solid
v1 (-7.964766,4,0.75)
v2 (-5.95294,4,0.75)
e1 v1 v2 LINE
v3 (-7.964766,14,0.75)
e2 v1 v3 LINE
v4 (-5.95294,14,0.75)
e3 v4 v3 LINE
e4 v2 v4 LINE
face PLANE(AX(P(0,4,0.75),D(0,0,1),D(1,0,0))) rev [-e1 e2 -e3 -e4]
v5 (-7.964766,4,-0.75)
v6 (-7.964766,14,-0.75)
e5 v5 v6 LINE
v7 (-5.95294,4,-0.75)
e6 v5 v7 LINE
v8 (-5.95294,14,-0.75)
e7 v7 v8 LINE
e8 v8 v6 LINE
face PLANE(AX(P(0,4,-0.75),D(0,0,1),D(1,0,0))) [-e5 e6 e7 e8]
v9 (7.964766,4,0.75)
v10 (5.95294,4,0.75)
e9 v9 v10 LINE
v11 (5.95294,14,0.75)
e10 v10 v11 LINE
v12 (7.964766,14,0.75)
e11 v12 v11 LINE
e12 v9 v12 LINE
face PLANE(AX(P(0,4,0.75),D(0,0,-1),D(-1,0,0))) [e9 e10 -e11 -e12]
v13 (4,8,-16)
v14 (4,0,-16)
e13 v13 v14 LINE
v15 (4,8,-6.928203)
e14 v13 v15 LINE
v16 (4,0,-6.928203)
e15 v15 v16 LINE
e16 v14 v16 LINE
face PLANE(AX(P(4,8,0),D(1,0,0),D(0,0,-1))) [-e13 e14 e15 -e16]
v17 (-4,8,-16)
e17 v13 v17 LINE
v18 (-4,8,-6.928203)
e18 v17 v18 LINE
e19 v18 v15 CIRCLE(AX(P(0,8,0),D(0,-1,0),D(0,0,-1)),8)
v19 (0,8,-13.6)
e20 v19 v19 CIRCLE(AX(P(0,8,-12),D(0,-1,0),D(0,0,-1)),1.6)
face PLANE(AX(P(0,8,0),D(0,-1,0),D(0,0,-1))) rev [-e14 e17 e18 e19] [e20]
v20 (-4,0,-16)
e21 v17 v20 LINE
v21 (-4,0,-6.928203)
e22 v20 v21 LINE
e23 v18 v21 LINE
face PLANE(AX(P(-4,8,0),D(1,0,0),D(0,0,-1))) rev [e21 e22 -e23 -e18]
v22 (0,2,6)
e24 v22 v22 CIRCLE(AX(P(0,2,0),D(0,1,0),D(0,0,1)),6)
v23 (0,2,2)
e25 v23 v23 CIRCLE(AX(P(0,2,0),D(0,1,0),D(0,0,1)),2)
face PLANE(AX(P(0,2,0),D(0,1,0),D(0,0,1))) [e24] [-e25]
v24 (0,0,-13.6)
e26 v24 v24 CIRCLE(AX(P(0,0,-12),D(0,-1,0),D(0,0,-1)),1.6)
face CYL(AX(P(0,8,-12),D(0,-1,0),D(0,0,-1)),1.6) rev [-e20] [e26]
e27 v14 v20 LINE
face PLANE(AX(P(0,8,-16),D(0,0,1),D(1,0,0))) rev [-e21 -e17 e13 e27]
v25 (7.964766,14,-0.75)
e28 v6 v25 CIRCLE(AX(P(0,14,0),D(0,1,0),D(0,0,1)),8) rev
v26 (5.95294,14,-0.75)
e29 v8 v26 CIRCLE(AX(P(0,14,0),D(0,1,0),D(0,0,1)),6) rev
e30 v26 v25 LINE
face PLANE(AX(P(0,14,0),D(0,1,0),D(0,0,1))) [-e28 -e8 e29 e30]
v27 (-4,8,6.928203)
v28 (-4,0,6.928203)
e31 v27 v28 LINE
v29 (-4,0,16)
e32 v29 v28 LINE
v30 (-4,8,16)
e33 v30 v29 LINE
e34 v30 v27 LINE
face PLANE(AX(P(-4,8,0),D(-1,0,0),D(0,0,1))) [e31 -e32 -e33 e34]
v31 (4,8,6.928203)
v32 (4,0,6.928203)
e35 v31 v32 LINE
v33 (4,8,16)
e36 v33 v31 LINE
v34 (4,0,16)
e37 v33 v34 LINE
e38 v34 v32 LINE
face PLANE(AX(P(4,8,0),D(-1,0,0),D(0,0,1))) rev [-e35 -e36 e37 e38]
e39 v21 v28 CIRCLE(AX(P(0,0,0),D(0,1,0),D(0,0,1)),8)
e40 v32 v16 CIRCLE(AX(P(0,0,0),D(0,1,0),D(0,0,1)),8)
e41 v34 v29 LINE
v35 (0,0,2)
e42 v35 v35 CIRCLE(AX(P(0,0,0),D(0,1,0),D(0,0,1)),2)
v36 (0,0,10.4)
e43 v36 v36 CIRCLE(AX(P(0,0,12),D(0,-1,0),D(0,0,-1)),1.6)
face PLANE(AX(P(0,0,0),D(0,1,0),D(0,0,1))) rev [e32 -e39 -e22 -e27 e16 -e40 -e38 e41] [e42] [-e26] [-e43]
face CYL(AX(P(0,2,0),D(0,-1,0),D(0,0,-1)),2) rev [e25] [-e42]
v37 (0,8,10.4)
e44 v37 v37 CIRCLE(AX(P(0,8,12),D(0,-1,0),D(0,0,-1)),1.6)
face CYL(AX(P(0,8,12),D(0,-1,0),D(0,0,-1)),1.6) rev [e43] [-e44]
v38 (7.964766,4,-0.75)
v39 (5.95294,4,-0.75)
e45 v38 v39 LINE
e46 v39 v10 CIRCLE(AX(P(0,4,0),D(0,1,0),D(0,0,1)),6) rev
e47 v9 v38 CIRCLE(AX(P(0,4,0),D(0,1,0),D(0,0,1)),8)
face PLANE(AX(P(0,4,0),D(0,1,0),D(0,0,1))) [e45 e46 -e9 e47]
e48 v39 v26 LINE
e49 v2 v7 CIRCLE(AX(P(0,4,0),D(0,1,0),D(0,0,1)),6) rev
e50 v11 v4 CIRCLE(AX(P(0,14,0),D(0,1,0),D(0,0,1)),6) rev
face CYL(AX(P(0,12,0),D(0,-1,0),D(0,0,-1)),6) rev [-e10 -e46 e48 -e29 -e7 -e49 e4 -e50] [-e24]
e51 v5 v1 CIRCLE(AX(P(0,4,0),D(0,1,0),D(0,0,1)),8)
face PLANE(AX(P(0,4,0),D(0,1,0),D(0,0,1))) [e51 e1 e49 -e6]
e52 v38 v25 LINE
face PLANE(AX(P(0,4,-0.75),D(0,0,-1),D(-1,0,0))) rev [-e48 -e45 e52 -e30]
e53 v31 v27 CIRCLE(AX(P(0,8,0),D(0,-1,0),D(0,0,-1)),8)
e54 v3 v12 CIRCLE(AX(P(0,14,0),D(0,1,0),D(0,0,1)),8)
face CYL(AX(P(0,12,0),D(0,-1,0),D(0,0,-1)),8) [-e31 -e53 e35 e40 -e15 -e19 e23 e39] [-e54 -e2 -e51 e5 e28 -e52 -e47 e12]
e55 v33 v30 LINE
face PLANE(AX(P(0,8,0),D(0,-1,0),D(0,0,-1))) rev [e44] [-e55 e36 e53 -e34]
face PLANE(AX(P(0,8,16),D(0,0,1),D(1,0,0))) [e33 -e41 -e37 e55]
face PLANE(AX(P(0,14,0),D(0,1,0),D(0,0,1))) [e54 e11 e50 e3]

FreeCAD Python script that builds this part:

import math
import FreeCAD as App
import Part
import Sketcher

V = App.Vector
Q = App.Units.Quantity

doc = App.newDocument("Part")
body = doc.addObject("PartDesign::Body", "Body")

# Sketch on XZ plane
sketch1 = body.newObject("Sketcher::SketchObject", "Sketch")
sketch1.AttachmentSupport = (doc.getObject("XZ_Plane"), [""])
sketch1.MapMode = "FlatFace"
sketch1.addGeometry([
    Part.Circle(V(0, 0, 0), V(0, 0, 1), 8),
    Part.Circle(V(0, 0, 0), V(0, 0, 1), 6),
], False)
sketch1.addConstraint([
    Sketcher.Constraint("Coincident", 0, 3, -1, 1),
    Sketcher.Constraint("Coincident", 1, 3, -1, 1),
    Sketcher.Constraint("Diameter", 0, Q("16 mm")),
    Sketcher.Constraint("Diameter", 1, Q("12 mm")),
])
pad1 = body.newObject("PartDesign::Pad", "Pad")
pad1.Profile = sketch1
pad1.Length = 12
pad1.Reversed = True

# Sketch on XZ plane
sketch2 = body.newObject("Sketcher::SketchObject", "Sketch001")
sketch2.AttachmentSupport = (doc.getObject("XZ_Plane"), [""])
sketch2.MapMode = "FlatFace"
sketch2.addGeometry([
    Part.Circle(V(0, 0, 0), V(0, 0, 1), 6),
    Part.Circle(V(0, 0, 0), V(0, 0, 1), 2),
], False)
sketch2.addConstraint([
    Sketcher.Constraint("Coincident", 0, 3, -1, 1),
    Sketcher.Constraint("Coincident", 1, 3, -1, 1),
    Sketcher.Constraint("Diameter", 0, Q("12 mm")),
    Sketcher.Constraint("Diameter", 1, Q("4 mm")),
])
pad2 = body.newObject("PartDesign::Pad", "Pad001")
pad2.Profile = sketch2
pad2.Length = 2
pad2.Reversed = True

# Sketch on XZ plane
sketch3 = body.newObject("Sketcher::SketchObject", "Sketch002")
sketch3.AttachmentSupport = (doc.getObject("XZ_Plane"), [""])
sketch3.MapMode = "FlatFace"
sketch3.AttachmentOffset = App.Placement(V(0, 0, -4), App.Rotation())
sketch3.addGeometry([
    Part.ArcOfCircle(Part.Circle(V(0, 0, 0), V(0, 0, 1), 8), math.radians(180), math.radians(185.38)),  # 0
    Part.ArcOfCircle(Part.Circle(V(0, 0, 0), V(0, 0, 1), 8), math.radians(174.62), math.radians(180)),  # 1
    Part.LineSegment(V(-8, 0.8, 0), V(-6, 0.8, 0)),  # 2
    Part.ArcOfCircle(Part.Circle(V(0, 0, 0), V(0, 0, 1), 6), math.radians(172.82), math.radians(187.18)),  # 3
    Part.LineSegment(V(-6, -0.8, 0), V(-8, -0.8, 0)),  # 4
    Part.ArcOfCircle(Part.Circle(V(0, 0, 0), V(0, 0, 1), 8), math.radians(-5.38), math.radians(0)),  # 5
    Part.LineSegment(V(8, -0.8, 0), V(6, -0.8, 0)),  # 6
    Part.ArcOfCircle(Part.Circle(V(0, 0, 0), V(0, 0, 1), 6), math.radians(-7.18), math.radians(0)),  # 7
    Part.ArcOfCircle(Part.Circle(V(0, 0, 0), V(0, 0, 1), 6), math.radians(0), math.radians(7.18)),  # 8
    Part.LineSegment(V(6, 0.8, 0), V(8, 0.8, 0)),  # 9
    Part.ArcOfCircle(Part.Circle(V(0, 0, 0), V(0, 0, 1), 8), math.radians(0), math.radians(5.38)),  # 10
], False)
sketch3.addConstraint([
    Sketcher.Constraint("Tangent", 0, 1, 1, 2),
    Sketcher.Constraint("Coincident", 1, 1, 2, 1),
    Sketcher.Constraint("Coincident", 2, 2, 3, 1),
    Sketcher.Constraint("Coincident", 3, 2, 4, 1),
    Sketcher.Constraint("Coincident", 4, 2, 0, 2),
    Sketcher.Constraint("Coincident", 5, 1, 6, 1),
    Sketcher.Constraint("Coincident", 6, 2, 7, 1),
    Sketcher.Constraint("Tangent", 7, 2, 8, 1),
    Sketcher.Constraint("Coincident", 8, 2, 9, 1),
    Sketcher.Constraint("Coincident", 9, 2, 10, 2),
    Sketcher.Constraint("Tangent", 10, 1, 5, 2),
    Sketcher.Constraint("Horizontal", 2),
    Sketcher.Constraint("Horizontal", 4),
    Sketcher.Constraint("Horizontal", 6),
    Sketcher.Constraint("Horizontal", 9),
    Sketcher.Constraint("Coincident", 0, 3, -1, 1),
    Sketcher.Constraint("Coincident", 3, 3, -1, 1),
    Sketcher.Constraint("Coincident", 5, 3, -1, 1),
    Sketcher.Constraint("Coincident", 7, 3, -1, 1),
    Sketcher.Constraint("Equal", 0, 1),
    Sketcher.Constraint("Equal", 1, 5),
    Sketcher.Constraint("Equal", 3, 7),
    Sketcher.Constraint("Equal", 7, 8),
    Sketcher.Constraint("Equal", 5, 10),
    Sketcher.Constraint("PointOnObject", 0, 1, -1),
    Sketcher.Constraint("PointOnObject", 7, 2, -1),
    Sketcher.Constraint("PointOnObject", 10, 1, -1),
    Sketcher.Constraint("Horizontal", 4, 2, 5, 1),
    Sketcher.Constraint("Horizontal", 2, 2, 8, 2),
    Sketcher.Constraint("Vertical", 2, 2, 3, 2),
    Sketcher.Constraint("Radius", 0, Q("8 mm")),
    Sketcher.Constraint("Radius", 3, Q("6 mm")),
    Sketcher.Constraint("DistanceY", 3, 2, 2, 2, Q("1.5 mm")),
])
pocket1 = body.newObject("PartDesign::Pocket", "Pocket")
pocket1.Profile = sketch3
pocket1.Length = 8

# Sketch on XZ plane
sketch4 = body.newObject("Sketcher::SketchObject", "Sketch003")
sketch4.AttachmentSupport = (doc.getObject("XZ_Plane"), [""])
sketch4.MapMode = "FlatFace"
sketch4.addGeometry([
    Part.LineSegment(V(-4, -16, 0), V(4, -16, 0)),  # 0
    Part.LineSegment(V(4, -16, 0), V(4, -6.9, 0)),  # 1
    Part.ArcOfCircle(Part.Circle(V(0, 0, 0), V(0, 0, 1), 8), math.radians(-90), math.radians(-60)),  # 2
    Part.ArcOfCircle(Part.Circle(V(0, 0, 0), V(0, 0, 1), 8), math.radians(-120), math.radians(-90)),  # 3
    Part.LineSegment(V(-4, -6.9, 0), V(-4, -16, 0)),  # 4
    Part.Circle(V(0, -12, 0), V(0, 0, 1), 1.6),  # 5
    Part.LineSegment(V(-4, 16, 0), V(-4, 6.9, 0)),  # 6
    Part.ArcOfCircle(Part.Circle(V(0, 0, 0), V(0, 0, 1), 8), math.radians(60), math.radians(120)),  # 7
    Part.LineSegment(V(4, 6.9, 0), V(4, 16, 0)),  # 8
    Part.LineSegment(V(4, 16, 0), V(-4, 16, 0)),  # 9
    Part.Circle(V(0, 12, 0), V(0, 0, 1), 1.6),  # 10
], False)
sketch4.addConstraint([
    Sketcher.Constraint("Coincident", 0, 2, 1, 1),
    Sketcher.Constraint("Coincident", 1, 2, 2, 2),
    Sketcher.Constraint("Tangent", 2, 1, 3, 2),
    Sketcher.Constraint("Coincident", 3, 1, 4, 1),
    Sketcher.Constraint("Coincident", 4, 2, 0, 1),
    Sketcher.Constraint("Coincident", 6, 2, 7, 2),
    Sketcher.Constraint("Coincident", 7, 1, 8, 1),
    Sketcher.Constraint("Coincident", 8, 2, 9, 1),
    Sketcher.Constraint("Coincident", 9, 2, 6, 1),
    Sketcher.Constraint("Horizontal", 0),
    Sketcher.Constraint("Vertical", 1),
    Sketcher.Constraint("Vertical", 4),
    Sketcher.Constraint("Vertical", 6),
    Sketcher.Constraint("Vertical", 8),
    Sketcher.Constraint("Horizontal", 9),
    Sketcher.Constraint("Coincident", 2, 3, -1, 1),
    Sketcher.Constraint("Coincident", 7, 3, -1, 1),
    Sketcher.Constraint("Equal", 2, 3),
    Sketcher.Constraint("Equal", 3, 7),
    Sketcher.Constraint("Equal", 5, 10),
    Sketcher.Constraint("Symmetric", 5, 3, 10, 3, -1, 1),
    Sketcher.Constraint("Symmetric", 4, 2, 8, 2, -1, 1),
    Sketcher.Constraint("PointOnObject", 5, 3, -2),
    Sketcher.Constraint("PointOnObject", 2, 1, -2),
    Sketcher.Constraint("Horizontal", 1, 2, 3, 1),
    Sketcher.Constraint("Horizontal", 6, 2, 7, 1),
    Sketcher.Constraint("Radius", 2, Q("8 mm")),
    Sketcher.Constraint("Diameter", 5, Q("3.2 mm")),
    Sketcher.Constraint("DistanceX", 0, 1, 0, 2, Q("8 mm")),
    Sketcher.Constraint("DistanceY", 5, 3, -1, 1, Q("12 mm")),
    Sketcher.Constraint("DistanceY", 0, 2, -1, 1, Q("16 mm")),
])
pad3 = body.newObject("PartDesign::Pad", "Pad002")
pad3.Profile = sketch4
pad3.Length = 8
pad3.Reversed = True

# Sketch on XZ plane
sketch5 = body.newObject("Sketcher::SketchObject", "Sketch004")
sketch5.AttachmentSupport = (doc.getObject("XZ_Plane"), [""])
sketch5.MapMode = "FlatFace"
sketch5.AttachmentOffset = App.Placement(V(0, 0, -12), App.Rotation())
sketch5.addGeometry([
    Part.LineSegment(V(-6, 0.8, 0), V(-8, 0.8, 0)),  # 0
    Part.ArcOfCircle(Part.Circle(V(0, 0, 0), V(0, 0, 1), 8), math.radians(5), math.radians(175)),  # 1
    Part.LineSegment(V(8, 0.8, 0), V(6, 0.8, 0)),  # 2
    Part.ArcOfCircle(Part.Circle(V(0, 0, 0), V(0, 0, 1), 6), math.radians(7), math.radians(173)),  # 3
    Part.LineSegment(V(6, -0.8, 0), V(8, -0.8, 0)),  # 4
    Part.ArcOfCircle(Part.Circle(V(0, 0, 0), V(0, 0, 1), 8), math.radians(-175), math.radians(-5)),  # 5
    Part.LineSegment(V(-8, -0.8, 0), V(-6, -0.8, 0)),  # 6
    Part.ArcOfCircle(Part.Circle(V(0, 0, 0), V(0, 0, 1), 6), math.radians(-173), math.radians(-7)),  # 7
], False)
sketch5.addConstraint([
    Sketcher.Constraint("Coincident", 0, 2, 1, 2),
    Sketcher.Constraint("Coincident", 1, 1, 2, 1),
    Sketcher.Constraint("Coincident", 2, 2, 3, 1),
    Sketcher.Constraint("Coincident", 3, 2, 0, 1),
    Sketcher.Constraint("Coincident", 4, 2, 5, 2),
    Sketcher.Constraint("Coincident", 5, 1, 6, 1),
    Sketcher.Constraint("Coincident", 6, 2, 7, 1),
    Sketcher.Constraint("Coincident", 7, 2, 4, 1),
    Sketcher.Constraint("Horizontal", 0),
    Sketcher.Constraint("Horizontal", 2),
    Sketcher.Constraint("Horizontal", 4),
    Sketcher.Constraint("Horizontal", 6),
    Sketcher.Constraint("Coincident", 1, 3, -1, 1),
    Sketcher.Constraint("Coincident", 3, 3, -1, 1),
    Sketcher.Constraint("Coincident", 5, 3, -1, 1),
    Sketcher.Constraint("Coincident", 7, 3, -1, 1),
    Sketcher.Constraint("Equal", 1, 5),
    Sketcher.Constraint("Equal", 3, 7),
    Sketcher.Constraint("Horizontal", 0, 2, 1, 1),
    Sketcher.Constraint("Horizontal", 4, 2, 5, 1),
    Sketcher.Constraint("Vertical", 1, 1, 4, 2),
    Sketcher.Constraint("Radius", 1, Q("8 mm")),
    Sketcher.Constraint("Radius", 3, Q("6 mm")),
    Sketcher.Constraint("DistanceY", 4, 2, 1, 1, Q("1.5 mm")),
])
pad4 = body.newObject("PartDesign::Pad", "Pad003")
pad4.Profile = sketch5
pad4.Length = 2
pad4.Reversed = True

doc.recompute()
